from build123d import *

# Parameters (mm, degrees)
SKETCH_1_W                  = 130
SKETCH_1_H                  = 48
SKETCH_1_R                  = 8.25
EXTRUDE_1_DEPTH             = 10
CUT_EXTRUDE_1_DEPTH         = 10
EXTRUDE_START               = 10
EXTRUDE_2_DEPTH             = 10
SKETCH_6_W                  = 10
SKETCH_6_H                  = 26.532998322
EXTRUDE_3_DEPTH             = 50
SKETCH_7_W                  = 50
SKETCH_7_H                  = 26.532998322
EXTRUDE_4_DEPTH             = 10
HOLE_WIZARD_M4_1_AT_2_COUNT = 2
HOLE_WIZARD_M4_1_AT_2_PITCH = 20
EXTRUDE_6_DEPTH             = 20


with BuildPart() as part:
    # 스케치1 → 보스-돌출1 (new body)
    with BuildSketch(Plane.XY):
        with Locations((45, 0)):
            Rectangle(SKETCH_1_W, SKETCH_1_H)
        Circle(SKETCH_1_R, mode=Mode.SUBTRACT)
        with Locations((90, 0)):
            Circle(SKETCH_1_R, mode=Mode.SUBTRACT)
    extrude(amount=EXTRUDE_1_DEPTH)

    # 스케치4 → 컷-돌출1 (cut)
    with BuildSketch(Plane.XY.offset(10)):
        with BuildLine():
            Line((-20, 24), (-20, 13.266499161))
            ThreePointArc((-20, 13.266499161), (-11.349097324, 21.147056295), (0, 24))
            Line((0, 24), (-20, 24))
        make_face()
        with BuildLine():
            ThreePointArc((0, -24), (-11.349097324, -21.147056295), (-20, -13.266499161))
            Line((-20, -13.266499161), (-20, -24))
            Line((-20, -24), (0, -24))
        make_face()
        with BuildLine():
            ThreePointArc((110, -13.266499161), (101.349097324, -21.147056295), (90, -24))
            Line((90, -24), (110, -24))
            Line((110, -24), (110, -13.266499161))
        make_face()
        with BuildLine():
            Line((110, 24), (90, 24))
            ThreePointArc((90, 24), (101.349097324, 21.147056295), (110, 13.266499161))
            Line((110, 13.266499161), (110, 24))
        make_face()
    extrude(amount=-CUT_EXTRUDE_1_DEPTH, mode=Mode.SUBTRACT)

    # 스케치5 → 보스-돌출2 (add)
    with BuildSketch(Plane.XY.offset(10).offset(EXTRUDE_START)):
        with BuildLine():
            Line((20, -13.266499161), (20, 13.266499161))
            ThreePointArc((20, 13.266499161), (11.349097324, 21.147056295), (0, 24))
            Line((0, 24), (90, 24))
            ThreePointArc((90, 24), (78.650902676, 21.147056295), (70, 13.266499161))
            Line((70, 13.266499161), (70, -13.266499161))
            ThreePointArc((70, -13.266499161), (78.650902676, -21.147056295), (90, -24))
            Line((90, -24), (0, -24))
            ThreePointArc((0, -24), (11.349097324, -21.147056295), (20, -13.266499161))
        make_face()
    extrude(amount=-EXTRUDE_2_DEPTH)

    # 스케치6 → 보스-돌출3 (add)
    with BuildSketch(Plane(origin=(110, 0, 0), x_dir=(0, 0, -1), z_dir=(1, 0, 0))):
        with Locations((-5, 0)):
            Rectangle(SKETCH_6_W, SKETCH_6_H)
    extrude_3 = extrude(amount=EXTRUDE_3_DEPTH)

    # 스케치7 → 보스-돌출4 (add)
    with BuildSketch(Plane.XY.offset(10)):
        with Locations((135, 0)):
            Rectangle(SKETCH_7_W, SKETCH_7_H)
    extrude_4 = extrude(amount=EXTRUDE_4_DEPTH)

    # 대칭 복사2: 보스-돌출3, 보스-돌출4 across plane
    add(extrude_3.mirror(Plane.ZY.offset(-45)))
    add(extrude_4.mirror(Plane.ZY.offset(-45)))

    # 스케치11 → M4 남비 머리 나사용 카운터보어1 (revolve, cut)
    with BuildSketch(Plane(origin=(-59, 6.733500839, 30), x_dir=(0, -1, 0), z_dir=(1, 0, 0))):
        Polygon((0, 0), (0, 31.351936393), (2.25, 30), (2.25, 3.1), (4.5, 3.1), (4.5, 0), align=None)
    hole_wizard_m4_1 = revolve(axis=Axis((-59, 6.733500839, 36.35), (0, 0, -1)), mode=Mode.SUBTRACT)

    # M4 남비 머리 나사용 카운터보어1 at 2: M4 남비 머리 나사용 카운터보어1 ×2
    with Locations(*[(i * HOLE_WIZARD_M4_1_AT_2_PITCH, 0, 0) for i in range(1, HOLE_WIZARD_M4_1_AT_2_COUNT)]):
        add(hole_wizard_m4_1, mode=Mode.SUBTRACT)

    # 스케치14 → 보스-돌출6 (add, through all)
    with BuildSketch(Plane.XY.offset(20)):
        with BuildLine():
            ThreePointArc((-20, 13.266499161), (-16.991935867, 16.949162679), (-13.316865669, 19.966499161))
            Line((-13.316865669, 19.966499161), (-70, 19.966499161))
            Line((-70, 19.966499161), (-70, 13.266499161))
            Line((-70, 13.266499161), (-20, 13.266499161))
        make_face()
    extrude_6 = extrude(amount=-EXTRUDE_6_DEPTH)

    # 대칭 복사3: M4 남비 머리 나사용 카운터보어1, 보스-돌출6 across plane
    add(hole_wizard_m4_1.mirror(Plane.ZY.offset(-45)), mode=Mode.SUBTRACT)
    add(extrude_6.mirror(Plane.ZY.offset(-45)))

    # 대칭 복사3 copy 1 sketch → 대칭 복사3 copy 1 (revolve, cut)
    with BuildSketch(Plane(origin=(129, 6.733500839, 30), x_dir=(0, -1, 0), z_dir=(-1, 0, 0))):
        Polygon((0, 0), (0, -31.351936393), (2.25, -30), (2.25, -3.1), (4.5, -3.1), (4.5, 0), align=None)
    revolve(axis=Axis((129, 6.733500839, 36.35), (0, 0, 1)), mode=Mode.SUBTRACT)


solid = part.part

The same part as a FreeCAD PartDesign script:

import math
import FreeCAD as App
import Part
import Sketcher

V = App.Vector
Q = App.Units.Quantity

doc = App.newDocument("Part")
body = doc.addObject("PartDesign::Body", "Body")

sketch1 = body.newObject("Sketcher::SketchObject", "Sketch")
sketch1.AttachmentSupport = (doc.getObject("XY_Plane"), [""])
sketch1.MapMode = "FlatFace"
sketch1.addGeometry([
    Part.LineSegment(V(-20, 24, 0), V(-20, -24, 0)),
    Part.LineSegment(V(-20, -24, 0), V(110, -24, 0)),
    Part.LineSegment(V(110, -24, 0), V(110, 24, 0)),
    Part.LineSegment(V(110, 24, 0), V(-20, 24, 0)),
    Part.Circle(V(0, 0, 0), V(0, 0, 1), 8),
    Part.Circle(V(90, 0, 0), V(0, 0, 1), 8),
], False)
sketch1.addConstraint([
    Sketcher.Constraint("Coincident", 0, 2, 1, 1),
    Sketcher.Constraint("Coincident", 1, 2, 2, 1),
    Sketcher.Constraint("Coincident", 2, 2, 3, 1),
    Sketcher.Constraint("Coincident", 3, 2, 0, 1),
    Sketcher.Constraint("Vertical", 0),
    Sketcher.Constraint("Horizontal", 1),
    Sketcher.Constraint("Vertical", 2),
    Sketcher.Constraint("Horizontal", 3),
    Sketcher.Constraint("Coincident", 4, 3, -1, 1),
    Sketcher.Constraint("Equal", 4, 5),
    Sketcher.Constraint("PointOnObject", 5, 3, -1),
    Sketcher.Constraint("Diameter", 4, 16.5),
    Sketcher.Constraint("DistanceX", 1, 1, 1, 2, 130.0),
    Sketcher.Constraint("DistanceY", 0, 2, 0, 1, 48.0),
    Sketcher.Constraint("DistanceX", -1, 1, 5, 3, 90.0),
    Sketcher.Constraint("DistanceX", 0, 2, -1, 1, 20.0),
    Sketcher.Constraint("DistanceY", 0, 2, -1, 1, 24.0),
])
pad1 = body.newObject("PartDesign::Pad", "Pad")
pad1.Profile = sketch1
pad1.Length = 10

sketch2 = body.newObject("Sketcher::SketchObject", "Sketch001")
sketch2.AttachmentSupport = (doc.getObject("XY_Plane"), [""])
sketch2.MapMode = "FlatFace"
sketch2.AttachmentOffset = App.Placement(V(0, 0, 10), App.Rotation())
sketch2.addGeometry([
    Part.LineSegment(V(-20, 24, 0), V(-20, 13, 0)),
    Part.ArcOfCircle(Part.Circle(V(0, 0, 0), V(0, 0, 1), 24), math.radians(90), math.radians(146)),
    Part.LineSegment(V(0, 24, 0), V(-20, 24, 0)),
    Part.ArcOfCircle(Part.Circle(V(0, 0, 0), V(0, 0, 1), 24), math.radians(-146), math.radians(-90)),
    Part.LineSegment(V(-20, -13, 0), V(-20, -24, 0)),
    Part.LineSegment(V(-20, -24, 0), V(0, -24, 0)),
    Part.ArcOfCircle(Part.Circle(V(90, 0, 0), V(0, 0, 1), 24), math.radians(-90), math.radians(-34)),
    Part.LineSegment(V(90, -24, 0), V(110, -24, 0)),
    Part.LineSegment(V(110, -24, 0), V(110, -13, 0)),
    Part.LineSegment(V(110, 24, 0), V(90, 24, 0)),
    Part.ArcOfCircle(Part.Circle(V(90, 0, 0), V(0, 0, 1), 24), math.radians(34), math.radians(90)),
    Part.LineSegment(V(110, 13, 0), V(110, 24, 0)),
], False)
sketch2.addConstraint([
    Sketcher.Constraint("Coincident", 0, 2, 1, 2),
    Sketcher.Constraint("Tangent", 1, 1, 2, 1),
    Sketcher.Constraint("Coincident", 2, 2, 0, 1),
    Sketcher.Constraint("Coincident", 3, 1, 4, 1),
    Sketcher.Constraint("Coincident", 4, 2, 5, 1),
    Sketcher.Constraint("Tangent", 5, 2, 3, 2),
    Sketcher.Constraint("Tangent", 6, 1, 7, 1),
    Sketcher.Constraint("Coincident", 7, 2, 8, 1),
    Sketcher.Constraint("Coincident", 8, 2, 6, 2),
    Sketcher.Constraint("Tangent", 9, 2, 10, 2),
    Sketcher.Constraint("Coincident", 10, 1, 11, 1),
    Sketcher.Constraint("Coincident", 11, 2, 9, 1),
    Sketcher.Constraint("Vertical", 0),
    Sketcher.Constraint("Horizontal", 2),
    Sketcher.Constraint("Vertical", 4),
    Sketcher.Constraint("Horizontal", 5),
    Sketcher.Constraint("Horizontal", 7),
    Sketcher.Constraint("Vertical", 8),
    Sketcher.Constraint("Horizontal", 9),
    Sketcher.Constraint("Vertical", 11),
    Sketcher.Constraint("Coincident", 1, 3, -1, 1),
    Sketcher.Constraint("Coincident", 3, 3, -1, 1),
    Sketcher.Constraint("Coincident", 10, 3, 6, 3),
    Sketcher.Constraint("Equal", 1, 3),
    Sketcher.Constraint("Equal", 3, 6),
    Sketcher.Constraint("Equal", 6, 10),
    Sketcher.Constraint("Symmetric", 8, 2, 10, 1, -1),
    Sketcher.Constraint("Horizontal", 3, 1, 8, 2),
    Sketcher.Constraint("Horizontal", 0, 2, 10, 1),
    Sketcher.Constraint("Radius", 1, 24.0),
    Sketcher.Constraint("DistanceX", 2, 2, 2, 1, 20.0),
    Sketcher.Constraint("DistanceX", -1, 1, 6, 3, 90.0),
])
pocket1 = body.newObject("PartDesign::Pocket", "Pocket")
pocket1.Profile = sketch2
pocket1.Length = 10

sketch3 = body.newObject("Sketcher::SketchObject", "Sketch002")
sketch3.AttachmentSupport = (doc.getObject("XY_Plane"), [""])
sketch3.MapMode = "FlatFace"
sketch3.AttachmentOffset = App.Placement(V(0, 0, 20), App.Rotation())
sketch3.addGeometry([
    Part.LineSegment(V(20, 13, 0), V(20, -13, 0)),
    Part.ArcOfCircle(Part.Circle(V(0, 0, 0), V(0, 0, 1), 24), math.radians(-90), math.radians(-34)),
    Part.LineSegment(V(0, -24, 0), V(90, -24, 0)),
    Part.ArcOfCircle(Part.Circle(V(90, 0, 0), V(0, 0, 1), 24), math.radians(-146), math.radians(-90)),
    Part.LineSegment(V(70, -13, 0), V(70, 13, 0)),
    Part.ArcOfCircle(Part.Circle(V(90, 0, 0), V(0, 0, 1), 24), math.radians(90), math.radians(146)),
    Part.LineSegment(V(90, 24, 0), V(0, 24, 0)),
    Part.ArcOfCircle(Part.Circle(V(0, 0, 0), V(0, 0, 1), 24), math.radians(34), math.radians(90)),
], False)
sketch3.addConstraint([
    Sketcher.Constraint("Coincident", 0, 2, 1, 2),
    Sketcher.Constraint("Tangent", 1, 1, 2, 1),
    Sketcher.Constraint("Tangent", 2, 2, 3, 2),
    Sketcher.Constraint("Coincident", 3, 1, 4, 1),
    Sketcher.Constraint("Coincident", 4, 2, 5, 2),
    Sketcher.Constraint("Tangent", 5, 1, 6, 1),
    Sketcher.Constraint("Tangent", 6, 2, 7, 2),
    Sketcher.Constraint("Coincident", 7, 1, 0, 1),
    Sketcher.Constraint("Vertical", 0),
    Sketcher.Constraint("Horizontal", 2),
    Sketcher.Constraint("Vertical", 4),
    Sketcher.Constraint("Horizontal", 6),
    Sketcher.Constraint("Coincident", 1, 3, -1, 1),
    Sketcher.Constraint("Coincident", 7, 3, -1, 1),
    Sketcher.Constraint("Coincident", 5, 3, 3, 3),
    Sketcher.Constraint("Equal", 1, 3),
    Sketcher.Constraint("Equal", 3, 5),
    Sketcher.Constraint("Horizontal", 0, 2, 3, 1),
    Sketcher.Constraint("Radius", 1, 24.0),
    Sketcher.Constraint("DistanceX", 2, 1, 2, 2, 90.0),
    Sketcher.Constraint("DistanceX", -1, 1, 0, 2, 20.0),
])
pad2 = body.newObject("PartDesign::Pad", "Pad001")
pad2.Profile = sketch3
pad2.Length = 10
pad2.Reversed = True

sketch4 = body.newObject("Sketcher::SketchObject", "Sketch003")
sketch4.AttachmentSupport = (doc.getObject("YZ_Plane"), [""])
sketch4.MapMode = "FlatFace"
sketch4.AttachmentOffset = App.Placement(V(0, 0, 110), App.Rotation())
sketch4.addGeometry([
    Part.LineSegment(V(13, 10, 0), V(-13, 10, 0)),
    Part.LineSegment(V(-13, 10, 0), V(-13, 0, 0)),
    Part.LineSegment(V(-13, 0, 0), V(13, 0, 0)),
    Part.LineSegment(V(13, 0, 0), V(13, 10, 0)),
], False)
sketch4.addConstraint([
    Sketcher.Constraint("Coincident", 0, 2, 1, 1),
    Sketcher.Constraint("Coincident", 1, 2, 2, 1),
    Sketcher.Constraint("Coincident", 2, 2, 3, 1),
    Sketcher.Constraint("Coincident", 3, 2, 0, 1),
    Sketcher.Constraint("Horizontal", 0),
    Sketcher.Constraint("Vertical", 1),
    Sketcher.Constraint("Horizontal", 2),
    Sketcher.Constraint("Vertical", 3),
    Sketcher.Constraint("Symmetric", 1, 2, 2, 2, -1, 1),
    Sketcher.Constraint("DistanceY", 1, 2, 1, 1, 10.0),
    Sketcher.Constraint("DistanceX", 0, 2, 0, 1, 26.532998),
])
pad3 = body.newObject("PartDesign::Pad", "Pad002")
pad3.Profile = sketch4
pad3.Length = 50

sketch5 = body.newObject("Sketcher::SketchObject", "Sketch004")
sketch5.AttachmentSupport = (doc.getObject("XY_Plane"), [""])
sketch5.MapMode = "FlatFace"
sketch5.AttachmentOffset = App.Placement(V(0, 0, 10), App.Rotation())
sketch5.addGeometry([
    Part.LineSegment(V(110, 13, 0), V(110, -13, 0)),
    Part.LineSegment(V(110, -13, 0), V(160, -13, 0)),
    Part.LineSegment(V(160, -13, 0), V(160, 13, 0)),
    Part.LineSegment(V(160, 13, 0), V(110, 13, 0)),
], False)
sketch5.addConstraint([
    Sketcher.Constraint("Coincident", 0, 2, 1, 1),
    Sketcher.Constraint("Coincident", 1, 2, 2, 1),
    Sketcher.Constraint("Coincident", 2, 2, 3, 1),
    Sketcher.Constraint("Coincident", 3, 2, 0, 1),
    Sketcher.Constraint("Vertical", 0),
    Sketcher.Constraint("Horizontal", 1),
    Sketcher.Constraint("Vertical", 2),
    Sketcher.Constraint("Horizontal", 3),
    Sketcher.Constraint("DistanceX", 1, 1, 1, 2, 50.0),
    Sketcher.Constraint("DistanceX", -1, 1, 0, 2, 110.0),
    Sketcher.Constraint("DistanceY", 0, 2, 0, 1, 26.532998),
    Sketcher.Constraint("DistanceY", 0, 2, -1, 1, 13.266499),
])
pad4 = body.newObject("PartDesign::Pad", "Pad003")
pad4.Profile = sketch5
pad4.Length = 10
doc.recompute()

datumplane = body.newObject("PartDesign::Plane", "DatumPlane")
datumplane.AttachmentSupport = (doc.getObject("YZ_Plane"), [""])
datumplane.MapMode = "FlatFace"
datumplane.AttachmentOffset = App.Placement(V(0, 0, 45), App.Rotation())
mirrored = body.newObject("PartDesign::Mirrored", "Mirrored")
mirrored.Originals = [pad3, pad4]
mirrored.MirrorPlane = (datumplane, [""])
body.Tip = mirrored

sketch6 = body.newObject("Sketcher::SketchObject", "Sketch005")
sketch6.AttachmentSupport = (doc.getObject("YZ_Plane"), [""])
sketch6.MapMode = "FlatFace"
sketch6.AttachmentOffset = App.Placement(V(0, 0, -59), App.Rotation())
sketch6.addGeometry([
    Part.LineSegment(V(6.7, -1.4, 0), V(6.7, 30, 0)),
    Part.LineSegment(V(6.7, 30, 0), V(2.2, 30, 0)),
    Part.LineSegment(V(2.2, 30, 0), V(2.2, 26.9, 0)),
    Part.LineSegment(V(2.2, 26.9, 0), V(4.5, 26.9, 0)),
    Part.LineSegment(V(4.5, 26.9, 0), V(4.5, 0, 0)),
    Part.LineSegment(V(4.5, 0, 0), V(6.7, -1.4, 0)),
], False)
sketch6.addGeometry(Part.LineSegment(V(6.7, 30, 0), V(6.7, -1.4, 0)), True)
sketch6.addConstraint([
    Sketcher.Constraint("Coincident", 0, 2, 1, 1),
    Sketcher.Constraint("Coincident", 1, 2, 2, 1),
    Sketcher.Constraint("Coincident", 2, 2, 3, 1),
    Sketcher.Constraint("Coincident", 3, 2, 4, 1),
    Sketcher.Constraint("Coincident", 4, 2, 5, 1),
    Sketcher.Constraint("Coincident", 5, 2, 0, 1),
    Sketcher.Constraint("Vertical", 0),
    Sketcher.Constraint("Horizontal", 1),
    Sketcher.Constraint("Vertical", 2),
    Sketcher.Constraint("Horizontal", 3),
    Sketcher.Constraint("Vertical", 4),
    Sketcher.Constraint("Vertical", 6),
    Sketcher.Constraint("Coincident", 6, 1, 0, 2),
    Sketcher.Constraint("PointOnObject", 4, 2, -1),
    Sketcher.Constraint("Equal", 0, 6),
    Sketcher.Constraint("Angle", 5, Q("-31 deg")),
    Sketcher.Constraint("DistanceX", 1, 2, 1, 1, 4.5),
    Sketcher.Constraint("DistanceY", 2, 2, 2, 1, 3.1),
    Sketcher.Constraint("DistanceY", 4, 2, 4, 1, 26.9),
    Sketcher.Constraint("DistanceX", 3, 1, 3, 2, 2.25),
    Sketcher.Constraint("DistanceX", -1, 1, 0, 2, 6.733501),
])
groove = body.newObject("PartDesign::Groove", "Groove")
groove.Profile = sketch6
groove.ReferenceAxis = (sketch6, ["Axis0"])
groove.Angle = 360
doc.recompute()

linearpattern = body.newObject("PartDesign::LinearPattern", "LinearPattern")
linearpattern.Originals = [groove]
linearpattern.Direction = (doc.getObject("X_Axis"), [""])
linearpattern.Mode = "offset"
linearpattern.Offset = 20
linearpattern.Occurrences = 2
body.Tip = linearpattern

sketch7 = body.newObject("Sketcher::SketchObject", "Sketch006")
sketch7.AttachmentSupport = (doc.getObject("XY_Plane"), [""])
sketch7.MapMode = "FlatFace"
sketch7.AttachmentOffset = App.Placement(V(0, 0, 20), App.Rotation())
sketch7.addGeometry([
    Part.ArcOfCircle(Part.Circle(V(0, 0, 0), V(0, 0, 1), 24), math.radians(124), math.radians(146)),
    Part.LineSegment(V(-13, 20, 0), V(-70, 20, 0)),
    Part.LineSegment(V(-70, 20, 0), V(-70, 13, 0)),
    Part.LineSegment(V(-70, 13, 0), V(-20, 13, 0)),
], False)
sketch7.addConstraint([
    Sketcher.Constraint("Coincident", 0, 1, 1, 1),
    Sketcher.Constraint("Coincident", 1, 2, 2, 1),
    Sketcher.Constraint("Coincident", 2, 2, 3, 1),
    Sketcher.Constraint("Coincident", 3, 2, 0, 2),
    Sketcher.Constraint("Horizontal", 1),
    Sketcher.Constraint("Vertical", 2),
    Sketcher.Constraint("Horizontal", 3),
    Sketcher.Constraint("Coincident", 0, 3, -1, 1),
    Sketcher.Constraint("Radius", 0, 24.0),
    Sketcher.Constraint("DistanceX", 3, 1, 3, 2, 50.0),
    Sketcher.Constraint("DistanceY", 2, 2, 2, 1, 6.7),
    Sketcher.Constraint("DistanceX", 1, 2, -1, 1, 70.0),
])
pad5 = body.newObject("PartDesign::Pad", "Pad004")
pad5.Profile = sketch7
pad5.Length = 20
pad5.Reversed = True
doc.recompute()

datumplane2 = body.newObject("PartDesign::Plane", "DatumPlane001")
datumplane2.AttachmentSupport = (doc.getObject("YZ_Plane"), [""])
datumplane2.MapMode = "FlatFace"
datumplane2.AttachmentOffset = App.Placement(V(0, 0, 45), App.Rotation())
mirrored2 = body.newObject("PartDesign::Mirrored", "Mirrored001")
mirrored2.Originals = [groove, pad5]
mirrored2.MirrorPlane = (datumplane2, [""])
body.Tip = mirrored2

sketch8 = body.newObject("Sketcher::SketchObject", "Sketch007")
sketch8.AttachmentSupport = (doc.getObject("YZ_Plane"), [""])
sketch8.MapMode = "FlatFace"
sketch8.AttachmentOffset = App.Placement(V(0, 0, 129), App.Rotation())
sketch8.addGeometry([
    Part.LineSegment(V(6.7, 30, 0), V(6.7, -1.4, 0)),
    Part.LineSegment(V(6.7, -1.4, 0), V(4.5, 0, 0)),
    Part.LineSegment(V(4.5, 0, 0), V(4.5, 26.9, 0)),
    Part.LineSegment(V(4.5, 26.9, 0), V(2.2, 26.9, 0)),
    Part.LineSegment(V(2.2, 26.9, 0), V(2.2, 30, 0)),
    Part.LineSegment(V(2.2, 30, 0), V(6.7, 30, 0)),
], False)
sketch8.addGeometry(Part.LineSegment(V(6.7, -1.4, 0), V(6.7, 30, 0)), True)
sketch8.addConstraint([
    Sketcher.Constraint("Coincident", 0, 2, 1, 1),
    Sketcher.Constraint("Coincident", 1, 2, 2, 1),
    Sketcher.Constraint("Coincident", 2, 2, 3, 1),
    Sketcher.Constraint("Coincident", 3, 2, 4, 1),
    Sketcher.Constraint("Coincident", 4, 2, 5, 1),
    Sketcher.Constraint("Coincident", 5, 2, 0, 1),
    Sketcher.Constraint("Vertical", 0),
    Sketcher.Constraint("Vertical", 2),
    Sketcher.Constraint("Horizontal", 3),
    Sketcher.Constraint("Vertical", 4),
    Sketcher.Constraint("Horizontal", 5),
    Sketcher.Constraint("Vertical", 6),
    Sketcher.Constraint("Coincident", 6, 1, 0, 2),
    Sketcher.Constraint("PointOnObject", 1, 2, -1),
    Sketcher.Constraint("Horizontal", 4, 2, 6, 2),
    Sketcher.Constraint("Angle", 1, Q("149 deg")),
    Sketcher.Constraint("DistanceX", 5, 1, 5, 2, 4.5),
    Sketcher.Constraint("DistanceY", 2, 1, 2, 2, 26.9),
    Sketcher.Constraint("DistanceY", 4, 1, 4, 2, 3.1),
    Sketcher.Constraint("DistanceX", 3, 2, 3, 1, 2.25),
    Sketcher.Constraint("DistanceX", -1, 1, 0, 2, 6.733501),
])
groove2 = body.newObject("PartDesign::Groove", "Groove001")
groove2.Profile = sketch8
groove2.ReferenceAxis = (sketch8, ["Axis0"])
groove2.Angle = 360

doc.recompute()
